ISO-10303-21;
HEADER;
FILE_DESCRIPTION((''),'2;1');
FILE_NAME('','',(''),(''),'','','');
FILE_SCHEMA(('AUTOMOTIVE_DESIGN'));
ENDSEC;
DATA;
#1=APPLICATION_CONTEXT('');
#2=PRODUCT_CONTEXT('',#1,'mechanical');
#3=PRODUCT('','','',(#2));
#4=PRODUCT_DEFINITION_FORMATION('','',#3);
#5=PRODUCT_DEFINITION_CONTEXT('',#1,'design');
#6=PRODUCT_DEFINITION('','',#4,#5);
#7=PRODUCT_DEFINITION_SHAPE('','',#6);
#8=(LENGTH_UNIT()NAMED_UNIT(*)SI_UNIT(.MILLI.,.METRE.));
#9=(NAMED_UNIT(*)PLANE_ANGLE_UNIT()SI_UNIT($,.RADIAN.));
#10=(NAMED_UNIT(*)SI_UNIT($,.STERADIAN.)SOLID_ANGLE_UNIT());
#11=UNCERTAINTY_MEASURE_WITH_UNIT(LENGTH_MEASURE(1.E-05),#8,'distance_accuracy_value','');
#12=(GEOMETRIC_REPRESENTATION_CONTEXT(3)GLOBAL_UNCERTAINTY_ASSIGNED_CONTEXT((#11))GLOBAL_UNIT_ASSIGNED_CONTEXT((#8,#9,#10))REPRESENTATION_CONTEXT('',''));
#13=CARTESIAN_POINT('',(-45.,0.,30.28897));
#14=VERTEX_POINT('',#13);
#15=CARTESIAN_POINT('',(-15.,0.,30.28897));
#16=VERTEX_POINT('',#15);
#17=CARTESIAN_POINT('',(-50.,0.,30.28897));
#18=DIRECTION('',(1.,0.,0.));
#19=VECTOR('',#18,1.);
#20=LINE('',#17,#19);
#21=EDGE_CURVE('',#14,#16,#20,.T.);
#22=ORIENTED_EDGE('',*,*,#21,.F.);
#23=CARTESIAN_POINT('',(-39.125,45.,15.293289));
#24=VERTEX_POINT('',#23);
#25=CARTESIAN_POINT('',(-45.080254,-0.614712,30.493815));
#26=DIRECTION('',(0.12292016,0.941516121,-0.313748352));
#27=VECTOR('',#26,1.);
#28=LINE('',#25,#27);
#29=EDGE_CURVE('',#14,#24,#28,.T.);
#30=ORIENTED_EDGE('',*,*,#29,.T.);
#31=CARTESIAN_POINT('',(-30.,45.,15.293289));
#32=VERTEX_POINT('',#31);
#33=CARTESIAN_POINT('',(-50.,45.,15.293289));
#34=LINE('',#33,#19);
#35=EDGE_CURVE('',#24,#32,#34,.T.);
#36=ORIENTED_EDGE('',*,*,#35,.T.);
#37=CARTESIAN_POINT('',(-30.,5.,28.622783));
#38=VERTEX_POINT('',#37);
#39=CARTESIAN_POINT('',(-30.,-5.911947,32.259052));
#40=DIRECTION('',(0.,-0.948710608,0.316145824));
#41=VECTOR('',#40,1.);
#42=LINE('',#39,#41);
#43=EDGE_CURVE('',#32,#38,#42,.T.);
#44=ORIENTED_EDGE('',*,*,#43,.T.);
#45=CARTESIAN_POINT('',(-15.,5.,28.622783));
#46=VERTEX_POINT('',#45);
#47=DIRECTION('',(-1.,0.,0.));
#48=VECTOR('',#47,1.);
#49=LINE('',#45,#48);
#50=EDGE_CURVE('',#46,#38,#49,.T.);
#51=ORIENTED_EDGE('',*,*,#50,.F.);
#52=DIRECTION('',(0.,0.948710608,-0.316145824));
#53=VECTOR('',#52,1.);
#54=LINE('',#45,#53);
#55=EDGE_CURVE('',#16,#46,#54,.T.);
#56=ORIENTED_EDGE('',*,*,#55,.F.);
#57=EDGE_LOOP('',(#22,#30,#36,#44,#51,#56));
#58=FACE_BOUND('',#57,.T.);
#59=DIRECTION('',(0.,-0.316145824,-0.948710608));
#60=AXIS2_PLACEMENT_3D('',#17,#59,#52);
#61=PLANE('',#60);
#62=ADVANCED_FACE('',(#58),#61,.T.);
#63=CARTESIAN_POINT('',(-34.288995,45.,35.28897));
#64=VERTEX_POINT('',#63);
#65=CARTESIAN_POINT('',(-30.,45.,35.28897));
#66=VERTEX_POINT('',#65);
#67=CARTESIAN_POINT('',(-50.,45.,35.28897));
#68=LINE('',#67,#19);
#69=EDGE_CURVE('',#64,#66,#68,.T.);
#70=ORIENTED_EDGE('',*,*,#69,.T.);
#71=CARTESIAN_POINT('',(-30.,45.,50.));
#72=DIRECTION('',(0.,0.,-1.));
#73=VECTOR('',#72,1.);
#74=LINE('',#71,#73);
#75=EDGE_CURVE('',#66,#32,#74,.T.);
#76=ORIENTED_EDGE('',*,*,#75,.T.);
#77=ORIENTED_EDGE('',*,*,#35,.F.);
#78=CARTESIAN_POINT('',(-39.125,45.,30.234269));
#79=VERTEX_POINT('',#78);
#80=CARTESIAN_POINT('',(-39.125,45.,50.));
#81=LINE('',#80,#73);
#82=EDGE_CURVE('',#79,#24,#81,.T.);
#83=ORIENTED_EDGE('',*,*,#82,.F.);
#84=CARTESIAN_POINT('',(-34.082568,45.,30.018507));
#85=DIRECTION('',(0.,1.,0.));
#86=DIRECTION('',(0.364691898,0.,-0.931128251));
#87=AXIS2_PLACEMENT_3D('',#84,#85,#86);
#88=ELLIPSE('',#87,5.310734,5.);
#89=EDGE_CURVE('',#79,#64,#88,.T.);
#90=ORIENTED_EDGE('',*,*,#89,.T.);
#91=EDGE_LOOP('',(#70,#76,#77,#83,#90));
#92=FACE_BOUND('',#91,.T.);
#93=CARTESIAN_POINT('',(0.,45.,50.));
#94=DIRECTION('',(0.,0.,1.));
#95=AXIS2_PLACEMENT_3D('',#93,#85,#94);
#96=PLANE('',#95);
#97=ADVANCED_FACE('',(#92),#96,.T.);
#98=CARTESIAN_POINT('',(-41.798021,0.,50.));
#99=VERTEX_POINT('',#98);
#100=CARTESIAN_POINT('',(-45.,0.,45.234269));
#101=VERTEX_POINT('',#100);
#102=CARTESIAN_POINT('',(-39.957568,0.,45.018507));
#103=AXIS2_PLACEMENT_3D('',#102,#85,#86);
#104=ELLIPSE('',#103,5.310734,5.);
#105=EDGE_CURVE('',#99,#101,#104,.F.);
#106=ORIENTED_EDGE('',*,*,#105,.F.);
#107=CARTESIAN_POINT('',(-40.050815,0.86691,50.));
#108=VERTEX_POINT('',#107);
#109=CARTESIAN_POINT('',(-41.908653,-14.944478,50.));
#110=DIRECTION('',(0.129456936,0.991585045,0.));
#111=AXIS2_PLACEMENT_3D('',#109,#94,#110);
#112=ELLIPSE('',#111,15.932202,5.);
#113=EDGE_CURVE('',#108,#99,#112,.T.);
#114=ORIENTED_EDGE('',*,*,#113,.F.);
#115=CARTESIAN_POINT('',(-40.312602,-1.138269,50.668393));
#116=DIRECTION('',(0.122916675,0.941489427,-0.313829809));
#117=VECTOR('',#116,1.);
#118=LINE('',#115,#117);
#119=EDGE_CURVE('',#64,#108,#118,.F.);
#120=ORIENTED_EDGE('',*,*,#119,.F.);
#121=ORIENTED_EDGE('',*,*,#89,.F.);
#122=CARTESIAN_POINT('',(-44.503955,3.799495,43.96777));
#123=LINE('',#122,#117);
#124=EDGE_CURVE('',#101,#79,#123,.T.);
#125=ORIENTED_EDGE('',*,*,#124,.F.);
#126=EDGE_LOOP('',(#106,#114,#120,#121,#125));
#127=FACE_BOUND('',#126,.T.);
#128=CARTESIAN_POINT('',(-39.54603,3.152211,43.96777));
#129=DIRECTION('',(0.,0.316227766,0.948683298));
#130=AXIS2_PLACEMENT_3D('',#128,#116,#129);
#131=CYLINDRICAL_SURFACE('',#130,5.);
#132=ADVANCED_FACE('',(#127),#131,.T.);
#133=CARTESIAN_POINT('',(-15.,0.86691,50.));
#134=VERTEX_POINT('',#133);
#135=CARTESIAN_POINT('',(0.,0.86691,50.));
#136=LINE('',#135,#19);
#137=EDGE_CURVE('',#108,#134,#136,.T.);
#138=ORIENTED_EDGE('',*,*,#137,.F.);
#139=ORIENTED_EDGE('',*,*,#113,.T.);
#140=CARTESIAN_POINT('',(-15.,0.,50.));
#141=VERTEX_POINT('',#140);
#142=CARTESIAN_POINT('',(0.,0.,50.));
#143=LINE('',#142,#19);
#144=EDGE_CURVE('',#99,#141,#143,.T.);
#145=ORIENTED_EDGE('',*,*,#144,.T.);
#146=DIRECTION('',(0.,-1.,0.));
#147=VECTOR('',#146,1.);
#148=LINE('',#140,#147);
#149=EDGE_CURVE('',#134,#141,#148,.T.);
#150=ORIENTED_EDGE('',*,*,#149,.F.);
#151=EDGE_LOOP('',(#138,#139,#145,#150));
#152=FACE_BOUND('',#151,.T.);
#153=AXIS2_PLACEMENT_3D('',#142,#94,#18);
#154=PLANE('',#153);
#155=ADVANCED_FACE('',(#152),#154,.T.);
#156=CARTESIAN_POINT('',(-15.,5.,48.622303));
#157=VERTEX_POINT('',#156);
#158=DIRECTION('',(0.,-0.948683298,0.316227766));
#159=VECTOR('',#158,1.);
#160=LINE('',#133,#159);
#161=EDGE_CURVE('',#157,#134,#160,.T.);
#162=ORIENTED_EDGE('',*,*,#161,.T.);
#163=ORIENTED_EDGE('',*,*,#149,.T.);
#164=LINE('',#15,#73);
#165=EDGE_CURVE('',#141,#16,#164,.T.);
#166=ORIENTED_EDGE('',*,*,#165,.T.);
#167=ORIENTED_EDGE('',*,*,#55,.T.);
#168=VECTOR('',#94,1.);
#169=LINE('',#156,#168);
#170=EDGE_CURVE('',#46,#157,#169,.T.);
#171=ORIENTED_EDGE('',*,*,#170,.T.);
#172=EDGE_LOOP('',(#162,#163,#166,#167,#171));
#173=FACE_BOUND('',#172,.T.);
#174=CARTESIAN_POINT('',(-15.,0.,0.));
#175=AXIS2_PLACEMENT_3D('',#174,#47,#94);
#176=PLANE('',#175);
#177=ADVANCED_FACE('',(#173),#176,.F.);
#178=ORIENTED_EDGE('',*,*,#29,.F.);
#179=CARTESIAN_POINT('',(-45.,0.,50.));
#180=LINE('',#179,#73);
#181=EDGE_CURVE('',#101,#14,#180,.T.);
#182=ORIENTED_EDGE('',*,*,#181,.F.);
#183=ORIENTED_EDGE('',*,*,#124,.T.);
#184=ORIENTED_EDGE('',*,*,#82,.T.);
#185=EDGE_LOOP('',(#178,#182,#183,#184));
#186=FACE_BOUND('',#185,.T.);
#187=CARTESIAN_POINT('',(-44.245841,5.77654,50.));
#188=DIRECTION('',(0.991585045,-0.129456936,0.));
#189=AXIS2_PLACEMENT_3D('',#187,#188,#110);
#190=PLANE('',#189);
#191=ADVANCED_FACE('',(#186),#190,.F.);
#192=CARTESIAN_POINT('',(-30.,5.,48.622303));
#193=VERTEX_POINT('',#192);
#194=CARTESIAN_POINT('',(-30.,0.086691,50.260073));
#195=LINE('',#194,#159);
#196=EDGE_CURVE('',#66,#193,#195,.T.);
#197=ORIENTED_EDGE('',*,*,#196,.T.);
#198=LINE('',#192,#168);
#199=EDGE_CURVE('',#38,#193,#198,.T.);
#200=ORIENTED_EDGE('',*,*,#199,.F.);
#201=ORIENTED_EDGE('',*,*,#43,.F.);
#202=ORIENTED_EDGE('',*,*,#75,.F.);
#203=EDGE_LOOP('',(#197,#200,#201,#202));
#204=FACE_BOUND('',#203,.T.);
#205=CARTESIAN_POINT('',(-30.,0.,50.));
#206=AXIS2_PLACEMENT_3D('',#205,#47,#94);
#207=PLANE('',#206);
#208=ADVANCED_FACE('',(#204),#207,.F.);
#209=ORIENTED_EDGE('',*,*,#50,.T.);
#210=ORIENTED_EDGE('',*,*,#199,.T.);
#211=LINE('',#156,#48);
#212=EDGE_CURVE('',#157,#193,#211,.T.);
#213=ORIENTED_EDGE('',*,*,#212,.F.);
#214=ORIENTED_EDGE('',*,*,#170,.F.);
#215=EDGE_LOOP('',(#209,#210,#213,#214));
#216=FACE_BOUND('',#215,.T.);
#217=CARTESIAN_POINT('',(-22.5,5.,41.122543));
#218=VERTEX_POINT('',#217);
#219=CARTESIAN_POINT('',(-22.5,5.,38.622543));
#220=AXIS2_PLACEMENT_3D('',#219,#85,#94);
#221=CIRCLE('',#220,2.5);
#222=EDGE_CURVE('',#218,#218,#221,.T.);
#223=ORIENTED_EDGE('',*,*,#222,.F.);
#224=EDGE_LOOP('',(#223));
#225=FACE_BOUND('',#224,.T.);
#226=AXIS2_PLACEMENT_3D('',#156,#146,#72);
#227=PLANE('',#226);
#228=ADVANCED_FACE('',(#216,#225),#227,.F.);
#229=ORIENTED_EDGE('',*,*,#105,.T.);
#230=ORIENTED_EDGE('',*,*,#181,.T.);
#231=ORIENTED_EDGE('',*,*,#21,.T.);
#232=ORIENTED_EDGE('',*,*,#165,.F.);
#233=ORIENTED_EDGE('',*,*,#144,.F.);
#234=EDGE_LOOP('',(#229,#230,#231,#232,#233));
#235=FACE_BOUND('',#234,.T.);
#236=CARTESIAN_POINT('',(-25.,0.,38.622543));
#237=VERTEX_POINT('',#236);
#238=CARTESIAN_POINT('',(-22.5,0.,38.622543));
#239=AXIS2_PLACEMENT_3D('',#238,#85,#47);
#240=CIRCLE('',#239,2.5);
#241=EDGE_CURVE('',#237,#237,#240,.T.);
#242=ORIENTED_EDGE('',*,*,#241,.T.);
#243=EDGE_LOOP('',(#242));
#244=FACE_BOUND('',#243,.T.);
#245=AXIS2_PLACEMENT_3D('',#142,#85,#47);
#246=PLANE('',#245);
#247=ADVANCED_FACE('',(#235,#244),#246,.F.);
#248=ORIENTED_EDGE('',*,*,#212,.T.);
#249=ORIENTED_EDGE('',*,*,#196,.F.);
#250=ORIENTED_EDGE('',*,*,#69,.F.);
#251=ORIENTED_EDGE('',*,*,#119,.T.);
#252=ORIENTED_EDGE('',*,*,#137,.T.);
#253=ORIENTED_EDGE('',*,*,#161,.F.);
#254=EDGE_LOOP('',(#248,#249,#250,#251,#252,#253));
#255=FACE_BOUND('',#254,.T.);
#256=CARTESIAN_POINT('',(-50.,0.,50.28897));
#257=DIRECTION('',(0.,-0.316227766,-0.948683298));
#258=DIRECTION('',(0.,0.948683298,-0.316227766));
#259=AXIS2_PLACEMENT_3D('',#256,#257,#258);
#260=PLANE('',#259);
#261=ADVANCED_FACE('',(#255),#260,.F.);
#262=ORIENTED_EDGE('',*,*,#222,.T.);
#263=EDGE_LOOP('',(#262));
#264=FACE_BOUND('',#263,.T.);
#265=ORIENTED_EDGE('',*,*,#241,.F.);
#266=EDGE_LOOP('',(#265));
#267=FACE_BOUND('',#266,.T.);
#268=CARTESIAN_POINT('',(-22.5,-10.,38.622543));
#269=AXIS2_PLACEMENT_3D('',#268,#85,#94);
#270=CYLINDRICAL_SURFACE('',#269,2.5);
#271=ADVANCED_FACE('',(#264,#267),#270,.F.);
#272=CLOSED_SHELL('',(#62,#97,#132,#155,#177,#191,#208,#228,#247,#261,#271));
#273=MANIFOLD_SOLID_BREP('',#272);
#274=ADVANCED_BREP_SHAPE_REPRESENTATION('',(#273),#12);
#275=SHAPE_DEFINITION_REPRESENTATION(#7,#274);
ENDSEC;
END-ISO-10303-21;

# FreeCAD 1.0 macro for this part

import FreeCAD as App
import Part
import Sketcher
Q = App.Units.Quantity


def edges_at(feature, points):
    """Names of the edges that pass closest to the given points."""
    edges = feature.Shape.Edges
    near = lambda p: min(range(len(edges)), key=lambda i: edges[i].distToShape(Part.Vertex(*p))[0])
    return sorted({f"Edge{near(p) + 1}" for p in points})


def add_polygon(sketch, points):
    """Adds a closed chain of lines whose ends are joined by coincident constraints."""
    first, n = sketch.GeometryCount, len(points)
    for a, b in zip(points, points[1:] + points[:1]):
        sketch.addGeometry(Part.LineSegment(App.Vector(*a, 0), App.Vector(*b, 0)), False)
    for i in range(n):
        sketch.addConstraint(Sketcher.Constraint("Coincident", first + i, 2, first + (i + 1) % n, 1))

doc = App.newDocument("Part")
body = doc.addObject("PartDesign::Body", "Body")

# Sketch on XY plane
sketch1 = body.newObject("Sketcher::SketchObject", "Sketch")
sketch1.AttachmentSupport = (doc.getObject("XY_Plane"), [""])
sketch1.MapMode = "FlatFace"
add_polygon(sketch1, [(-39.125, 45), (-45, 0), (-30, 0), (-30, 45)])  # lines 0-3
sketch1.addConstraint(Sketcher.Constraint("Horizontal", 1))
sketch1.addConstraint(Sketcher.Constraint("Vertical", 2))
sketch1.addConstraint(Sketcher.Constraint("Horizontal", 3))
sketch1.addConstraint(Sketcher.Constraint("PointOnObject", 0, 2, -1))
sketch1.addConstraint(Sketcher.Constraint("DistanceX", 1, 1, 1, 2, 15.0))
sketch1.addConstraint(Sketcher.Constraint("DistanceY", 2, 1, 2, 2, 45.0))
sketch1.addConstraint(Sketcher.Constraint("DistanceX", 0, 2, -1, 1, 45.0))
sketch1.addConstraint(Sketcher.Constraint("DistanceX", 3, 2, 3, 1, 9.125))
pad1 = body.newObject("PartDesign::Pad", "Pad")
pad1.Profile = sketch1
pad1.Length = 50

# Sketch on YZ plane
sketch2 = body.newObject("Sketcher::SketchObject", "Sketch001")
sketch2.AttachmentSupport = (doc.getObject("YZ_Plane"), [""])
sketch2.MapMode = "FlatFace"
add_polygon(sketch2, [(45, 50), (0, 50.28897), (45, 35.28897)])  # lines 0-2
add_polygon(sketch2, [(45, 15.293289), (0, 30.28897), (0, 0), (45, 0)])  # lines 3-6
sketch2.addConstraint(Sketcher.Constraint("Vertical", 2))
sketch2.addConstraint(Sketcher.Constraint("Vertical", 4))
sketch2.addConstraint(Sketcher.Constraint("Horizontal", 5))
sketch2.addConstraint(Sketcher.Constraint("Vertical", 6))
sketch2.addConstraint(Sketcher.Constraint("Coincident", 4, 2, -1, 1))
sketch2.addConstraint(Sketcher.Constraint("PointOnObject", 0, 2, -2))
sketch2.addConstraint(Sketcher.Constraint("Vertical", 2, 2, 5, 2))
sketch2.addConstraint(Sketcher.Constraint("DistanceX", 5, 1, 5, 2, 45.0))
sketch2.addConstraint(Sketcher.Constraint("DistanceY", -1, 1, 2, 2, 50.0))
sketch2.addConstraint(Sketcher.Constraint("DistanceY", 1, 2, 0, 2, 15.0))
sketch2.addConstraint(Sketcher.Constraint("DistanceY", 3, 2, 0, 2, 20.0))
sketch2.addConstraint(Sketcher.Constraint("Angle", 3, Q("161.57 deg")))
sketch2.addConstraint(Sketcher.Constraint("DistanceY", 2, 1, 2, 2, 14.71103))
pocket1 = body.newObject("PartDesign::Pocket", "Pocket")
pocket1.Profile = sketch2
pocket1.Length = 50

# Sketch on YZ plane
sketch3 = body.newObject("Sketcher::SketchObject", "Sketch002")
sketch3.AttachmentSupport = (doc.getObject("YZ_Plane"), [""])
sketch3.MapMode = "FlatFace"
sketch3.AttachmentOffset = App.Placement(App.Vector(0, 0, -30), App.Rotation())
add_polygon(sketch3, [(0.86691, 50), (0, 50), (0, 30.28897), (5, 28.622783), (5, 48.622303)])  # lines 0-4
sketch3.addConstraint(Sketcher.Constraint("Horizontal", 0))
sketch3.addConstraint(Sketcher.Constraint("Vertical", 1))
sketch3.addConstraint(Sketcher.Constraint("Vertical", 3))
sketch3.addConstraint(Sketcher.Constraint("PointOnObject", 0, 2, -2))
sketch3.addConstraint(Sketcher.Constraint("DistanceY", -1, 1, 0, 2, 50.0))
sketch3.addConstraint(Sketcher.Constraint("DistanceX", -1, 1, 2, 2, 5.0))
sketch3.addConstraint(Sketcher.Constraint("Angle", 2, Q("-18.43 deg")))
sketch3.addConstraint(Sketcher.Constraint("DistanceX", 0, 2, 0, 1, 0.86691))
sketch3.addConstraint(Sketcher.Constraint("DistanceY", 1, 2, 1, 1, 19.71103))
sketch3.addConstraint(Sketcher.Constraint("DistanceY", 3, 1, 3, 2, 19.99952))
pad2 = body.newObject("PartDesign::Pad", "Pad001")
pad2.Profile = sketch3
pad2.Length = 15

# Sketch on XZ plane
sketch4 = body.newObject("Sketcher::SketchObject", "Sketch003")
sketch4.AttachmentSupport = (doc.getObject("XZ_Plane"), [""])
sketch4.MapMode = "FlatFace"
sketch4.AttachmentOffset = App.Placement(App.Vector(0, 0, -5), App.Rotation())
sketch4.addGeometry(Part.Circle(App.Vector(-22.5, 38.622543, 0), App.Vector(0, 0, 1), 2.5), False)
sketch4.addConstraint(Sketcher.Constraint("Diameter", 0, 5.0))
sketch4.addConstraint(Sketcher.Constraint("DistanceX", 0, 3, -1, 1, 22.5))
sketch4.addConstraint(Sketcher.Constraint("DistanceY", -1, 1, 0, 3, 38.622543))
pocket2 = body.newObject("PartDesign::Pocket", "Pocket001")
pocket2.Profile = sketch4
pocket2.Length = 15
pocket2.Reversed = True
doc.recompute()

fillet = body.newObject("PartDesign::Fillet", "Fillet")
fillet.Base = (pocket2, edges_at(pocket2, [(-42.006, 22.933, 42.644)]))
fillet.Radius = 5

doc.recompute()
